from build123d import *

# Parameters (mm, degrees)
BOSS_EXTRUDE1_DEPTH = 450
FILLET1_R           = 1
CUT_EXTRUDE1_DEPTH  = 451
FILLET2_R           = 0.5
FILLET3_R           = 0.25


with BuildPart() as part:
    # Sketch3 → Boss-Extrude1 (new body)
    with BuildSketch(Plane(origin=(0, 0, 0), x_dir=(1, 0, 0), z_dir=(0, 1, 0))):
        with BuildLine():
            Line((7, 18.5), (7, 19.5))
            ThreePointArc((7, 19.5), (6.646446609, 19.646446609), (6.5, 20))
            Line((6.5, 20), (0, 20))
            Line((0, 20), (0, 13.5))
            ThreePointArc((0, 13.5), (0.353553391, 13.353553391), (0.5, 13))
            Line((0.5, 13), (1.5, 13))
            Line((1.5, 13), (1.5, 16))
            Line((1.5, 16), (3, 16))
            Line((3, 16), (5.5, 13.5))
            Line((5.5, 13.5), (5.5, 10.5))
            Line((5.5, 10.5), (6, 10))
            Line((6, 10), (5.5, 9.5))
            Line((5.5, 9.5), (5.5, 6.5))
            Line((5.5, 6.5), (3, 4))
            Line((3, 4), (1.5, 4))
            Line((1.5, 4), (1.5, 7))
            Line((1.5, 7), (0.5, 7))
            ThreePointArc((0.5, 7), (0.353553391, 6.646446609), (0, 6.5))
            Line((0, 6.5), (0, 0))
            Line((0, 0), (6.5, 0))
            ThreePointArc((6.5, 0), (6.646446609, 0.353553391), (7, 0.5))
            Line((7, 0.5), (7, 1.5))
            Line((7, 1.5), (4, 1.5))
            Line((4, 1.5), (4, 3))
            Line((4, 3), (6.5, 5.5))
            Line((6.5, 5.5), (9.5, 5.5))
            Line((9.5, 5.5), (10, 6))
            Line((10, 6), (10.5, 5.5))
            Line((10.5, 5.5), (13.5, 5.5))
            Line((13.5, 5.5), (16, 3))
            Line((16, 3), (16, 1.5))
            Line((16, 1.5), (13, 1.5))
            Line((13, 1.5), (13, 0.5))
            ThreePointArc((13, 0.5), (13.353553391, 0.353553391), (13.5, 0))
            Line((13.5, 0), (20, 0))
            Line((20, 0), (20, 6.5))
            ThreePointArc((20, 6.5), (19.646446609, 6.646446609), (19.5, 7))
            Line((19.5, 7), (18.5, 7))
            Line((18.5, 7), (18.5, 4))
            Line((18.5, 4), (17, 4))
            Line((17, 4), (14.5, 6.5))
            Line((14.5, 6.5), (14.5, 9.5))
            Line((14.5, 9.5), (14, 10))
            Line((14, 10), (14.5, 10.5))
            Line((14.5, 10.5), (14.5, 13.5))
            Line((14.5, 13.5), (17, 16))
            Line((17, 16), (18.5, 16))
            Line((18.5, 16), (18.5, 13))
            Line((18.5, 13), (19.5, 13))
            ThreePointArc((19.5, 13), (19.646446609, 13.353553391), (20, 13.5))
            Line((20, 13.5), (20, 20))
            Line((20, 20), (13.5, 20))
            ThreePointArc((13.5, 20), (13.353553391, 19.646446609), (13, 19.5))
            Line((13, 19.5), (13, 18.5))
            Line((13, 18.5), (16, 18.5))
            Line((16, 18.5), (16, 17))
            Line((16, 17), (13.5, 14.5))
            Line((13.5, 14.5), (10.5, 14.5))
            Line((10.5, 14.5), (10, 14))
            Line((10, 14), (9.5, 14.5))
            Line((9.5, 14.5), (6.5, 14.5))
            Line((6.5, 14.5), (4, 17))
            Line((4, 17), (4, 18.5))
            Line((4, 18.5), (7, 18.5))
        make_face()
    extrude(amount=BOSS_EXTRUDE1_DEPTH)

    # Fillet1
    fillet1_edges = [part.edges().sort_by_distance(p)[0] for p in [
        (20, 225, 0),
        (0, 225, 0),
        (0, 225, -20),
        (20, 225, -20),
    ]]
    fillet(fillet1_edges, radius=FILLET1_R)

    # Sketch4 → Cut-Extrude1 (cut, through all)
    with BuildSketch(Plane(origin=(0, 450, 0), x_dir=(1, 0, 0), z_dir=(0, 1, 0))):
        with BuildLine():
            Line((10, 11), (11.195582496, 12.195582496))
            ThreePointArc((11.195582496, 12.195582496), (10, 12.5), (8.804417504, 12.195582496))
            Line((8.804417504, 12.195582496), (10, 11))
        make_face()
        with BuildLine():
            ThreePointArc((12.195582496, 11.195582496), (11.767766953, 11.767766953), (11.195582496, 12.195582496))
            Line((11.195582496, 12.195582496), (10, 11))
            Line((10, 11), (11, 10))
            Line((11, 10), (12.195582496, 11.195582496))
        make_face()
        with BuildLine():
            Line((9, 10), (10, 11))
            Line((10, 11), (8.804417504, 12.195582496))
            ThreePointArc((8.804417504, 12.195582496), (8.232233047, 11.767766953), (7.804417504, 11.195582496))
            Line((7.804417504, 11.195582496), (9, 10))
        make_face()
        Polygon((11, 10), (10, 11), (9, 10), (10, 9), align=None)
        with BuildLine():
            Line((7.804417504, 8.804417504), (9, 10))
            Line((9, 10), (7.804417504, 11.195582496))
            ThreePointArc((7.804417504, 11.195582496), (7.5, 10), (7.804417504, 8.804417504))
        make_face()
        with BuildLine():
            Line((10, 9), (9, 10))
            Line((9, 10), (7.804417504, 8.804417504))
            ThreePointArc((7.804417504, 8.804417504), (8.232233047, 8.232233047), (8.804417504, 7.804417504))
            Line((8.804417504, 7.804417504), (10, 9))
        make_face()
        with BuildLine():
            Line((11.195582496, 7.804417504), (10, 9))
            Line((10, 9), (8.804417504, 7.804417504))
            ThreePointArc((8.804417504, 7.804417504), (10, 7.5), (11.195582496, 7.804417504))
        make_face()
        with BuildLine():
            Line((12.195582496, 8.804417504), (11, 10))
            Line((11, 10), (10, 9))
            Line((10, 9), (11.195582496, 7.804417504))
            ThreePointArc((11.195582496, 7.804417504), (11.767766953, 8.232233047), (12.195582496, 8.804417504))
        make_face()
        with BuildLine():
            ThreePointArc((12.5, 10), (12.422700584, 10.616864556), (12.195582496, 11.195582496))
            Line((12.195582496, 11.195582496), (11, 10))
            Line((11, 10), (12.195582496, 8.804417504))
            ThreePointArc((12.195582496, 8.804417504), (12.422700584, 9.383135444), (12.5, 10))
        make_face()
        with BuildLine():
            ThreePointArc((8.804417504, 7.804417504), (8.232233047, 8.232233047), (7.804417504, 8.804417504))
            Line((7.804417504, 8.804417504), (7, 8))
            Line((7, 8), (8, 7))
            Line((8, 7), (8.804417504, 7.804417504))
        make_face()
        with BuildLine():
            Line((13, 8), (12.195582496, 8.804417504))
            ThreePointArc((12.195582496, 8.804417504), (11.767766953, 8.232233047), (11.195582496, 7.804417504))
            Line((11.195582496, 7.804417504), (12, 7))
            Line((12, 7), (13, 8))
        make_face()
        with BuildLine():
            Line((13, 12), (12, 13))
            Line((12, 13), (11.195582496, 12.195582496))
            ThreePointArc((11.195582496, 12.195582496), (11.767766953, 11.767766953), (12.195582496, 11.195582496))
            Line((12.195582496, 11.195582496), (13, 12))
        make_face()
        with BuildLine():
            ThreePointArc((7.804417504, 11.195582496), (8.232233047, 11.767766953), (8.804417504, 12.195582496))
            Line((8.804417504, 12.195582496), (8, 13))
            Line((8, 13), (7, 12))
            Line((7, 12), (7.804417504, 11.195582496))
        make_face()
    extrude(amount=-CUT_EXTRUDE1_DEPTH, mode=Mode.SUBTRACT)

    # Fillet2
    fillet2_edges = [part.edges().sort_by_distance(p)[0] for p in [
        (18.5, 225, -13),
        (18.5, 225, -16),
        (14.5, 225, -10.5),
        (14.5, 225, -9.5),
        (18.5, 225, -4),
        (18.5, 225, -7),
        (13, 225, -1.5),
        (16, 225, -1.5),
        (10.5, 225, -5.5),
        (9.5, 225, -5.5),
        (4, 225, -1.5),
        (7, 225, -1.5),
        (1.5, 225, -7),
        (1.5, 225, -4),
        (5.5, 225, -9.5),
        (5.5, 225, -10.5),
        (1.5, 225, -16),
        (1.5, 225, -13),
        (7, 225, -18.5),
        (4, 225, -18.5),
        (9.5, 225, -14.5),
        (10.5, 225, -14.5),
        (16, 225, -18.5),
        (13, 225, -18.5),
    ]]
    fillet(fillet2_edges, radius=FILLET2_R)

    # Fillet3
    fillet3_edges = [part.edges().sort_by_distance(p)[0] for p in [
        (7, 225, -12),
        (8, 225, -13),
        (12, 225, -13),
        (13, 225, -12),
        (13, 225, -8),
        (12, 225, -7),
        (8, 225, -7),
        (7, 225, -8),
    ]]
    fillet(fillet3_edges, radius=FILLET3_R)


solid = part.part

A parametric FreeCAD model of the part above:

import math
import FreeCAD as App
import Part
import Sketcher

V = App.Vector


def edges_at(feature, points):
    """Names of the edges that pass closest to the given points."""
    edges = feature.Shape.Edges
    near = lambda p: min(range(len(edges)), key=lambda i: edges[i].distToShape(Part.Vertex(*p))[0])
    return sorted({f"Edge{near(p) + 1}" for p in points})

doc = App.newDocument("Part")
params = doc.addObject("Spreadsheet::Sheet", "Params")
for row, (alias, value) in enumerate([
    ("sketch1_radius", "0.5 mm"),
    ("sketch1_width", "1 mm"),
    ("sketch1_width2", "3 mm"),
    ("sketch1_width3", "6.5 mm"),
    ("sketch1_width4", "1.5 mm"),
    ("pad1_length", "450 mm"),
    ("fillet_radius", "1 mm"),
    ("sketch2_radius", "2.5 mm"),
    ("fillet2_radius", "0.5 mm"),
    ("fillet3_radius", "0.25 mm"),
], start=1):
    params.set(f"A{row}", alias)
    params.set(f"B{row}", "=" + value)
    params.setAlias(f"B{row}", alias)

body = doc.addObject("PartDesign::Body", "Body")

# Sketch on XZ plane
sketch1 = body.newObject("Sketcher::SketchObject", "Sketch")
sketch1.AttachmentSupport = (doc.getObject("XZ_Plane"), [""])
sketch1.MapMode = "FlatFace"
sketch1.addGeometry([
    Part.LineSegment(V(7, -18.5, 0), V(7, -19.5, 0)),  # 0
    Part.ArcOfCircle(Part.Circle(V(7, -20, 0), V(0, 0, 1), 0.5), math.radians(90), math.radians(180)),  # 1
    Part.LineSegment(V(6.5, -20, 0), V(0, -20, 0)),  # 2
    Part.LineSegment(V(0, -20, 0), V(0, -13.5, 0)),  # 3
    Part.ArcOfCircle(Part.Circle(V(0, -13, 0), V(0, 0, 1), 0.5), math.radians(-90), math.radians(0)),  # 4
    Part.LineSegment(V(0.5, -13, 0), V(1.5, -13, 0)),  # 5
    Part.LineSegment(V(1.5, -13, 0), V(1.5, -16, 0)),  # 6
    Part.LineSegment(V(1.5, -16, 0), V(3, -16, 0)),  # 7
    Part.LineSegment(V(3, -16, 0), V(5.5, -13.5, 0)),  # 8
    Part.LineSegment(V(5.5, -13.5, 0), V(5.5, -10.5, 0)),  # 9
    Part.LineSegment(V(5.5, -10.5, 0), V(6, -10, 0)),  # 10
    Part.LineSegment(V(6, -10, 0), V(5.5, -9.5, 0)),  # 11
    Part.LineSegment(V(5.5, -9.5, 0), V(5.5, -6.5, 0)),  # 12
    Part.LineSegment(V(5.5, -6.5, 0), V(3, -4, 0)),  # 13
    Part.LineSegment(V(3, -4, 0), V(1.5, -4, 0)),  # 14
    Part.LineSegment(V(1.5, -4, 0), V(1.5, -7, 0)),  # 15
    Part.LineSegment(V(1.5, -7, 0), V(0.5, -7, 0)),  # 16
    Part.ArcOfCircle(Part.Circle(V(0, -7, 0), V(0, 0, 1), 0.5), math.radians(0), math.radians(90)),  # 17
    Part.LineSegment(V(0, -6.5, 0), V(0, 0, 0)),  # 18
    Part.LineSegment(V(0, 0, 0), V(6.5, 0, 0)),  # 19
    Part.ArcOfCircle(Part.Circle(V(7, 0, 0), V(0, 0, 1), 0.5), math.radians(180), math.radians(270)),  # 20
    Part.LineSegment(V(7, -0.5, 0), V(7, -1.5, 0)),  # 21
    Part.LineSegment(V(7, -1.5, 0), V(4, -1.5, 0)),  # 22
    Part.LineSegment(V(4, -1.5, 0), V(4, -3, 0)),  # 23
    Part.LineSegment(V(4, -3, 0), V(6.5, -5.5, 0)),  # 24
    Part.LineSegment(V(6.5, -5.5, 0), V(9.5, -5.5, 0)),  # 25
    Part.LineSegment(V(9.5, -5.5, 0), V(10, -6, 0)),  # 26
    Part.LineSegment(V(10, -6, 0), V(10.5, -5.5, 0)),  # 27
    Part.LineSegment(V(10.5, -5.5, 0), V(13.5, -5.5, 0)),  # 28
    Part.LineSegment(V(13.5, -5.5, 0), V(16, -3, 0)),  # 29
    Part.LineSegment(V(16, -3, 0), V(16, -1.5, 0)),  # 30
    Part.LineSegment(V(16, -1.5, 0), V(13, -1.5, 0)),  # 31
    Part.LineSegment(V(13, -1.5, 0), V(13, -0.5, 0)),  # 32
    Part.ArcOfCircle(Part.Circle(V(13, 0, 0), V(0, 0, 1), 0.5), math.radians(-90), math.radians(0)),  # 33
    Part.LineSegment(V(13.5, 0, 0), V(20, 0, 0)),  # 34
    Part.LineSegment(V(20, 0, 0), V(20, -6.5, 0)),  # 35
    Part.ArcOfCircle(Part.Circle(V(20, -7, 0), V(0, 0, 1), 0.5), math.radians(90), math.radians(180)),  # 36
    Part.LineSegment(V(19.5, -7, 0), V(18.5, -7, 0)),  # 37
    Part.LineSegment(V(18.5, -7, 0), V(18.5, -4, 0)),  # 38
    Part.LineSegment(V(18.5, -4, 0), V(17, -4, 0)),  # 39
    Part.LineSegment(V(17, -4, 0), V(14.5, -6.5, 0)),  # 40
    Part.LineSegment(V(14.5, -6.5, 0), V(14.5, -9.5, 0)),  # 41
    Part.LineSegment(V(14.5, -9.5, 0), V(14, -10, 0)),  # 42
    Part.LineSegment(V(14, -10, 0), V(14.5, -10.5, 0)),  # 43
    Part.LineSegment(V(14.5, -10.5, 0), V(14.5, -13.5, 0)),  # 44
    Part.LineSegment(V(14.5, -13.5, 0), V(17, -16, 0)),  # 45
    Part.LineSegment(V(17, -16, 0), V(18.5, -16, 0)),  # 46
    Part.LineSegment(V(18.5, -16, 0), V(18.5, -13, 0)),  # 47
    Part.LineSegment(V(18.5, -13, 0), V(19.5, -13, 0)),  # 48
    Part.ArcOfCircle(Part.Circle(V(20, -13, 0), V(0, 0, 1), 0.5), math.radians(180), math.radians(270)),  # 49
    Part.LineSegment(V(20, -13.5, 0), V(20, -20, 0)),  # 50
    Part.LineSegment(V(20, -20, 0), V(13.5, -20, 0)),  # 51
    Part.ArcOfCircle(Part.Circle(V(13, -20, 0), V(0, 0, 1), 0.5), math.radians(0), math.radians(90)),  # 52
    Part.LineSegment(V(13, -19.5, 0), V(13, -18.5, 0)),  # 53
    Part.LineSegment(V(13, -18.5, 0), V(16, -18.5, 0)),  # 54
    Part.LineSegment(V(16, -18.5, 0), V(16, -17, 0)),  # 55
    Part.LineSegment(V(16, -17, 0), V(13.5, -14.5, 0)),  # 56
    Part.LineSegment(V(13.5, -14.5, 0), V(10.5, -14.5, 0)),  # 57
    Part.LineSegment(V(10.5, -14.5, 0), V(10, -14, 0)),  # 58
    Part.LineSegment(V(10, -14, 0), V(9.5, -14.5, 0)),  # 59
    Part.LineSegment(V(9.5, -14.5, 0), V(6.5, -14.5, 0)),  # 60
    Part.LineSegment(V(6.5, -14.5, 0), V(4, -17, 0)),  # 61
    Part.LineSegment(V(4, -17, 0), V(4, -18.5, 0)),  # 62
    Part.LineSegment(V(4, -18.5, 0), V(7, -18.5, 0)),  # 63
], False)
sketch1.addConstraint([
    Sketcher.Constraint("Coincident", 0, 2, 1, 1),
    Sketcher.Constraint("Coincident", 1, 2, 2, 1),
    Sketcher.Constraint("Coincident", 2, 2, 3, 1),
    Sketcher.Constraint("Coincident", 3, 2, 4, 1),
    Sketcher.Constraint("Coincident", 4, 2, 5, 1),
    Sketcher.Constraint("Coincident", 5, 2, 6, 1),
    Sketcher.Constraint("Coincident", 6, 2, 7, 1),
    Sketcher.Constraint("Coincident", 7, 2, 8, 1),
    Sketcher.Constraint("Coincident", 8, 2, 9, 1),
    Sketcher.Constraint("Coincident", 9, 2, 10, 1),
    Sketcher.Constraint("Coincident", 10, 2, 11, 1),
    Sketcher.Constraint("Coincident", 11, 2, 12, 1),
    Sketcher.Constraint("Coincident", 12, 2, 13, 1),
    Sketcher.Constraint("Coincident", 13, 2, 14, 1),
    Sketcher.Constraint("Coincident", 14, 2, 15, 1),
    Sketcher.Constraint("Coincident", 15, 2, 16, 1),
    Sketcher.Constraint("Coincident", 16, 2, 17, 1),
    Sketcher.Constraint("Coincident", 17, 2, 18, 1),
    Sketcher.Constraint("Coincident", 18, 2, 19, 1),
    Sketcher.Constraint("Coincident", 19, 2, 20, 1),
    Sketcher.Constraint("Coincident", 20, 2, 21, 1),
    Sketcher.Constraint("Coincident", 21, 2, 22, 1),
    Sketcher.Constraint("Coincident", 22, 2, 23, 1),
    Sketcher.Constraint("Coincident", 23, 2, 24, 1),
    Sketcher.Constraint("Coincident", 24, 2, 25, 1),
    Sketcher.Constraint("Coincident", 25, 2, 26, 1),
    Sketcher.Constraint("Coincident", 26, 2, 27, 1),
    Sketcher.Constraint("Coincident", 27, 2, 28, 1),
    Sketcher.Constraint("Coincident", 28, 2, 29, 1),
    Sketcher.Constraint("Coincident", 29, 2, 30, 1),
    Sketcher.Constraint("Coincident", 30, 2, 31, 1),
    Sketcher.Constraint("Coincident", 31, 2, 32, 1),
    Sketcher.Constraint("Coincident", 32, 2, 33, 1),
    Sketcher.Constraint("Coincident", 33, 2, 34, 1),
    Sketcher.Constraint("Coincident", 34, 2, 35, 1),
    Sketcher.Constraint("Coincident", 35, 2, 36, 1),
    Sketcher.Constraint("Coincident", 36, 2, 37, 1),
    Sketcher.Constraint("Coincident", 37, 2, 38, 1),
    Sketcher.Constraint("Coincident", 38, 2, 39, 1),
    Sketcher.Constraint("Coincident", 39, 2, 40, 1),
    Sketcher.Constraint("Coincident", 40, 2, 41, 1),
    Sketcher.Constraint("Coincident", 41, 2, 42, 1),
    Sketcher.Constraint("Coincident", 42, 2, 43, 1),
    Sketcher.Constraint("Coincident", 43, 2, 44, 1),
    Sketcher.Constraint("Coincident", 44, 2, 45, 1),
    Sketcher.Constraint("Coincident", 45, 2, 46, 1),
    Sketcher.Constraint("Coincident", 46, 2, 47, 1),
    Sketcher.Constraint("Coincident", 47, 2, 48, 1),
    Sketcher.Constraint("Coincident", 48, 2, 49, 1),
    Sketcher.Constraint("Coincident", 49, 2, 50, 1),
    Sketcher.Constraint("Coincident", 50, 2, 51, 1),
    Sketcher.Constraint("Coincident", 51, 2, 52, 1),
    Sketcher.Constraint("Coincident", 52, 2, 53, 1),
    Sketcher.Constraint("Coincident", 53, 2, 54, 1),
    Sketcher.Constraint("Coincident", 54, 2, 55, 1),
    Sketcher.Constraint("Coincident", 55, 2, 56, 1),
    Sketcher.Constraint("Coincident", 56, 2, 57, 1),
    Sketcher.Constraint("Coincident", 57, 2, 58, 1),
    Sketcher.Constraint("Coincident", 58, 2, 59, 1),
    Sketcher.Constraint("Coincident", 59, 2, 60, 1),
    Sketcher.Constraint("Coincident", 60, 2, 61, 1),
    Sketcher.Constraint("Coincident", 61, 2, 62, 1),
    Sketcher.Constraint("Coincident", 62, 2, 63, 1),
    Sketcher.Constraint("Coincident", 63, 2, 0, 1),
    Sketcher.Constraint("Vertical", 0),
    Sketcher.Constraint("Horizontal", 2),
    Sketcher.Constraint("Vertical", 3),
    Sketcher.Constraint("Horizontal", 5),
    Sketcher.Constraint("Vertical", 6),
    Sketcher.Constraint("Horizontal", 7),
    Sketcher.Constraint("Vertical", 9),
    Sketcher.Constraint("Vertical", 12),
    Sketcher.Constraint("Horizontal", 14),
    Sketcher.Constraint("Vertical", 15),
    Sketcher.Constraint("Horizontal", 16),
    Sketcher.Constraint("Vertical", 18),
    Sketcher.Constraint("Horizontal", 19),
    Sketcher.Constraint("Vertical", 21),
    Sketcher.Constraint("Horizontal", 22),
    Sketcher.Constraint("Vertical", 23),
    Sketcher.Constraint("Horizontal", 25),
    Sketcher.Constraint("Horizontal", 28),
    Sketcher.Constraint("Vertical", 30),
    Sketcher.Constraint("Horizontal", 31),
    Sketcher.Constraint("Vertical", 32),
    Sketcher.Constraint("Horizontal", 34),
    Sketcher.Constraint("Vertical", 35),
    Sketcher.Constraint("Horizontal", 37),
    Sketcher.Constraint("Vertical", 38),
    Sketcher.Constraint("Horizontal", 39),
    Sketcher.Constraint("Vertical", 41),
    Sketcher.Constraint("Vertical", 44),
    Sketcher.Constraint("Horizontal", 46),
    Sketcher.Constraint("Vertical", 47),
    Sketcher.Constraint("Horizontal", 48),
    Sketcher.Constraint("Vertical", 50),
    Sketcher.Constraint("Horizontal", 51),
    Sketcher.Constraint("Vertical", 53),
    Sketcher.Constraint("Horizontal", 54),
    Sketcher.Constraint("Vertical", 55),
    Sketcher.Constraint("Horizontal", 57),
    Sketcher.Constraint("Horizontal", 60),
    Sketcher.Constraint("Vertical", 62),
    Sketcher.Constraint("Horizontal", 63),
    Sketcher.Constraint("Coincident", 18, 2, -1, 1),
    Sketcher.Constraint("Equal", 1, 4),
    Sketcher.Constraint("Equal", 4, 17),
    Sketcher.Constraint("Equal", 17, 20),
    Sketcher.Constraint("Equal", 20, 33),
    Sketcher.Constraint("Equal", 33, 36),
    Sketcher.Constraint("Equal", 36, 49),
    Sketcher.Constraint("Equal", 49, 52),
    Sketcher.Constraint("PointOnObject", 4, 3, -2),
    Sketcher.Constraint("PointOnObject", 17, 3, -2),
    Sketcher.Constraint("PointOnObject", 20, 3, -1),
    Sketcher.Constraint("PointOnObject", 33, 3, -1),
    Sketcher.Constraint("PointOnObject", 2, 2, -2),
    Sketcher.Constraint("PointOnObject", 33, 2, -1),
    Sketcher.Constraint("Parallel", 8, 10),
    Sketcher.Constraint("Perpendicular", 10, 11),
    Sketcher.Constraint("Parallel", 11, 13),
    Sketcher.Constraint("Parallel", 13, 24),
    Sketcher.Constraint("Parallel", 24, 26),
    Sketcher.Constraint("Perpendicular", 26, 27),
    Sketcher.Constraint("Parallel", 27, 29),
    Sketcher.Constraint("Parallel", 29, 40),
    Sketcher.Constraint("Parallel", 40, 42),
    Sketcher.Constraint("Perpendicular", 42, 43),
    Sketcher.Constraint("Parallel", 43, 45),
    Sketcher.Constraint("Parallel", 45, 56),
    Sketcher.Constraint("Parallel", 56, 58),
    Sketcher.Constraint("Perpendicular", 58, 59),
    Sketcher.Constraint("Parallel", 59, 61),
    Sketcher.Constraint("Horizontal", 17, 3, 36, 3),
    Sketcher.Constraint("Horizontal", 4, 3, 49, 3),
    Sketcher.Constraint("Horizontal", 1, 3, 52, 3),
    Sketcher.Constraint("Horizontal", 52, 3, 1, 2),
    Sketcher.Constraint("Horizontal", 49, 3, 4, 2),
    Sketcher.Constraint("Horizontal", 3, 2, 8, 2),
    Sketcher.Constraint("Horizontal", 36, 3, 15, 2),
    Sketcher.Constraint("Horizontal", 12, 2, 17, 2),
    Sketcher.Constraint("Horizontal", 25, 2, 27, 2),
    Sketcher.Constraint("Horizontal", 23, 2, 29, 2),
    Sketcher.Constraint("Horizontal", 22, 2, 30, 2),
    Sketcher.Constraint("Horizontal", 16, 2, 36, 2),
    Sketcher.Constraint("Horizontal", 14, 2, 38, 2),
    Sketcher.Constraint("Horizontal", 35, 2, 40, 2),
    Sketcher.Constraint("Horizontal", 11, 2, 41, 2),
    Sketcher.Constraint("Horizontal", 10, 2, 42, 2),
    Sketcher.Constraint("Horizontal", 9, 2, 43, 2),
    Sketcher.Constraint("Horizontal", 8, 2, 44, 2),
    Sketcher.Constraint("Horizontal", 7, 2, 45, 2),
    Sketcher.Constraint("Horizontal", 5, 2, 47, 2),
    Sketcher.Constraint("Horizontal", 2, 2, 50, 2),
    Sketcher.Constraint("Horizontal", 57, 2, 59, 2),
    Sketcher.Constraint("Horizontal", 55, 2, 61, 2),
    Sketcher.Constraint("Horizontal", 54, 2, 62, 2),
    Sketcher.Constraint("Vertical", 1, 3, 20, 3),
    Sketcher.Constraint("Vertical", 36, 3, 49, 3),
    Sketcher.Constraint("Vertical", 33, 3, 52, 3),
    Sketcher.Constraint("Vertical", 20, 3, 0, 2),
    Sketcher.Constraint("Vertical", 9, 2, 11, 2),
    Sketcher.Constraint("Vertical", 7, 2, 13, 2),
    Sketcher.Constraint("Vertical", 6, 2, 14, 2),
    Sketcher.Constraint("Vertical", 0, 2, 20, 2),
    Sketcher.Constraint("Vertical", 19, 2, 24, 2),
    Sketcher.Constraint("Vertical", 52, 3, 31, 2),
    Sketcher.Constraint("Vertical", 28, 2, 33, 2),
    Sketcher.Constraint("Vertical", 49, 3, 34, 2),
    Sketcher.Constraint("Vertical", 41, 2, 43, 2),
    Sketcher.Constraint("Vertical", 38, 2, 46, 2),
    Sketcher.Constraint("Vertical", 35, 2, 49, 2),
    Sketcher.Constraint("Vertical", 32, 2, 52, 2),
    Sketcher.Constraint("Vertical", 30, 2, 54, 2),
    Sketcher.Constraint("Vertical", 51, 2, 56, 2),
    Sketcher.Constraint("Vertical", 27, 2, 57, 2),
    Sketcher.Constraint("Vertical", 26, 2, 58, 2),
    Sketcher.Constraint("Vertical", 24, 2, 60, 2),
    Sketcher.Constraint("Equal", 22, 25),
    Sketcher.Constraint("Equal", 25, 28),
    Sketcher.Constraint("Equal", 19, 34),
    Sketcher.Constraint("Equal", 16, 37),
    Sketcher.Constraint("Equal", 14, 39),
    Sketcher.Constraint("Equal", 48, 0),
    Sketcher.Constraint("Equal", 51, 3),
    Sketcher.Constraint("Equal", 63, 6),
    Sketcher.Constraint("Equal", 6, 9),
    Sketcher.Constraint("Equal", 9, 12),
    Sketcher.Constraint("Equal", 3, 18),
    Sketcher.Constraint("Equal", 0, 21),
    Sketcher.Constraint("Equal", 46, 23),
    Sketcher.Constraint("Equal", 30, 55),
    Sketcher.Constraint("Equal", 11, 26),
    Sketcher.Constraint("Radius", 1, 0.5),
    Sketcher.Constraint("DistanceX", 5, 1, 5, 2, 1.0),
    Sketcher.Constraint("DistanceX", 22, 2, 22, 1, 3.0),
    Sketcher.Constraint("DistanceX", 2, 2, 2, 1, 6.5),
    Sketcher.Constraint("DistanceX", 7, 1, 7, 2, 1.5),
    Sketcher.Constraint("DistanceY", 1, 3, -1, 1, 20.0),
])
sketch1.setExpression("Constraints[193]", "Params.sketch1_radius")
sketch1.setExpression("Constraints[194]", "Params.sketch1_width")
sketch1.setExpression("Constraints[195]", "Params.sketch1_width2")
sketch1.setExpression("Constraints[196]", "Params.sketch1_width3")
sketch1.setExpression("Constraints[197]", "Params.sketch1_width4")
pad1 = body.newObject("PartDesign::Pad", "Pad")
pad1.Profile = sketch1
pad1.setExpression("Length", "Params.pad1_length")
pad1.Reversed = True
doc.recompute()

fillet = body.newObject("PartDesign::Fillet", "Fillet")
fillet.Base = (pad1, edges_at(pad1, [
    (20, 225, 0),
    (0, 225, 0),
    (0, 225, -20),
    (20, 225, -20),
]))
fillet.setExpression("Radius", "Params.fillet_radius")

# Sketch on XZ plane
sketch2 = body.newObject("Sketcher::SketchObject", "Sketch001")
sketch2.AttachmentSupport = (doc.getObject("XZ_Plane"), [""])
sketch2.MapMode = "FlatFace"
sketch2.AttachmentOffset = App.Placement(V(0, 0, -450), App.Rotation())
sketch2.addGeometry([
    Part.ArcOfCircle(Part.Circle(V(10, -10, 0), V(0, 0, 1), 2.5), math.radians(-119), math.radians(-61)),  # 0
    Part.LineSegment(V(8.8, -12.2, 0), V(8, -13, 0)),  # 1
    Part.LineSegment(V(8, -13, 0), V(7, -12, 0)),  # 2
    Part.LineSegment(V(7, -12, 0), V(7.8, -11.2, 0)),  # 3
    Part.ArcOfCircle(Part.Circle(V(10, -10, 0), V(0, 0, 1), 2.5), math.radians(151), math.radians(209)),  # 4
    Part.LineSegment(V(7.8, -8.8, 0), V(7, -8, 0)),  # 5
    Part.LineSegment(V(7, -8, 0), V(8, -7, 0)),  # 6
    Part.LineSegment(V(8, -7, 0), V(8.8, -7.8, 0)),  # 7
    Part.ArcOfCircle(Part.Circle(V(10, -10, 0), V(0, 0, 1), 2.5), math.radians(61), math.radians(119)),  # 8
    Part.LineSegment(V(11.2, -7.8, 0), V(12, -7, 0)),  # 9
    Part.LineSegment(V(12, -7, 0), V(13, -8, 0)),  # 10
    Part.LineSegment(V(13, -8, 0), V(12.2, -8.8, 0)),  # 11
    Part.ArcOfCircle(Part.Circle(V(10, -10, 0), V(0, 0, 1), 2.5), math.radians(0), math.radians(29)),  # 12
    Part.ArcOfCircle(Part.Circle(V(10, -10, 0), V(0, 0, 1), 2.5), math.radians(-29), math.radians(0)),  # 13
    Part.LineSegment(V(12.2, -11.2, 0), V(13, -12, 0)),  # 14
    Part.LineSegment(V(13, -12, 0), V(12, -13, 0)),  # 15
    Part.LineSegment(V(12, -13, 0), V(11.2, -12.2, 0)),  # 16
], False)
sketch2.addConstraint([
    Sketcher.Constraint("Coincident", 0, 1, 1, 1),
    Sketcher.Constraint("Coincident", 1, 2, 2, 1),
    Sketcher.Constraint("Coincident", 2, 2, 3, 1),
    Sketcher.Constraint("Coincident", 3, 2, 4, 2),
    Sketcher.Constraint("Coincident", 4, 1, 5, 1),
    Sketcher.Constraint("Coincident", 5, 2, 6, 1),
    Sketcher.Constraint("Coincident", 6, 2, 7, 1),
    Sketcher.Constraint("Coincident", 7, 2, 8, 2),
    Sketcher.Constraint("Coincident", 8, 1, 9, 1),
    Sketcher.Constraint("Coincident", 9, 2, 10, 1),
    Sketcher.Constraint("Coincident", 10, 2, 11, 1),
    Sketcher.Constraint("Coincident", 11, 2, 12, 2),
    Sketcher.Constraint("Tangent", 12, 1, 13, 2),
    Sketcher.Constraint("Coincident", 13, 1, 14, 1),
    Sketcher.Constraint("Coincident", 14, 2, 15, 1),
    Sketcher.Constraint("Coincident", 15, 2, 16, 1),
    Sketcher.Constraint("Coincident", 16, 2, 0, 2),
    Sketcher.Constraint("Coincident", 4, 3, 0, 3),
    Sketcher.Constraint("Coincident", 8, 3, 0, 3),
    Sketcher.Constraint("Coincident", 12, 3, 0, 3),
    Sketcher.Constraint("Equal", 0, 4),
    Sketcher.Constraint("Equal", 4, 8),
    Sketcher.Constraint("Equal", 8, 12),
    Sketcher.Constraint("Equal", 12, 13),
    Sketcher.Constraint("Perpendicular", 1, 2),
    Sketcher.Constraint("Perpendicular", 2, 3),
    Sketcher.Constraint("Perpendicular", 3, 5),
    Sketcher.Constraint("Perpendicular", 5, 6),
    Sketcher.Constraint("Perpendicular", 6, 7),
    Sketcher.Constraint("Perpendicular", 7, 9),
    Sketcher.Constraint("Perpendicular", 9, 10),
    Sketcher.Constraint("Perpendicular", 10, 11),
    Sketcher.Constraint("Perpendicular", 11, 14),
    Sketcher.Constraint("Perpendicular", 14, 15),
    Sketcher.Constraint("Perpendicular", 15, 16),
    Sketcher.Constraint("Horizontal", 7, 2, 8, 1),
    Sketcher.Constraint("Horizontal", 6, 2, 9, 2),
    Sketcher.Constraint("Horizontal", 5, 2, 10, 2),
    Sketcher.Constraint("Horizontal", 4, 1, 11, 2),
    Sketcher.Constraint("Horizontal", 13, 3, 12, 1),
    Sketcher.Constraint("Horizontal", 3, 2, 13, 1),
    Sketcher.Constraint("Horizontal", 2, 2, 14, 2),
    Sketcher.Constraint("Horizontal", 1, 2, 15, 2),
    Sketcher.Constraint("Vertical", 3, 2, 4, 1),
    Sketcher.Constraint("Vertical", 2, 2, 5, 2),
    Sketcher.Constraint("Vertical", 1, 2, 6, 2),
    Sketcher.Constraint("Equal", 1, 3),
    Sketcher.Constraint("Radius", 0, 2.5),
    Sketcher.Constraint("DistanceX", -1, 1, 0, 3, 10.0),
    Sketcher.Constraint("DistanceY", 0, 3, -1, 1, 10.0),
    Sketcher.Constraint("DistanceX", -1, 1, 1, 2, 8.0),
    Sketcher.Constraint("DistanceY", 1, 2, -1, 1, 13.0),
])
sketch2.setExpression("Constraints[47]", "Params.sketch2_radius")
pocket1 = body.newObject("PartDesign::Pocket", "Pocket")
pocket1.Profile = sketch2
pocket1.Type = "ThroughAll"
pocket1.Reversed = True
doc.recompute()

fillet2 = body.newObject("PartDesign::Fillet", "Fillet001")
fillet2.Base = (pocket1, edges_at(pocket1, [
    (18.5, 225, -13),
    (18.5, 225, -16),
    (14.5, 225, -10.5),
    (14.5, 225, -9.5),
    (18.5, 225, -4),
    (18.5, 225, -7),
    (13, 225, -1.5),
    (16, 225, -1.5),
    (10.5, 225, -5.5),
    (9.5, 225, -5.5),
    (4, 225, -1.5),
    (7, 225, -1.5),
    (1.5, 225, -7),
    (1.5, 225, -4),
    (5.5, 225, -9.5),
    (5.5, 225, -10.5),
    (1.5, 225, -16),
    (1.5, 225, -13),
    (7, 225, -18.5),
    (4, 225, -18.5),
    (9.5, 225, -14.5),
    (10.5, 225, -14.5),
    (16, 225, -18.5),
    (13, 225, -18.5),
]))
fillet2.setExpression("Radius", "Params.fillet2_radius")
doc.recompute()

fillet3 = body.newObject("PartDesign::Fillet", "Fillet002")
fillet3.Base = (fillet2, edges_at(fillet2, [
    (7, 225, -12),
    (8, 225, -13),
    (12, 225, -13),
    (13, 225, -12),
    (13, 225, -8),
    (12, 225, -7),
    (8, 225, -7),
    (7, 225, -8),
]))
fillet3.setExpression("Radius", "Params.fillet3_radius")

doc.recompute()
